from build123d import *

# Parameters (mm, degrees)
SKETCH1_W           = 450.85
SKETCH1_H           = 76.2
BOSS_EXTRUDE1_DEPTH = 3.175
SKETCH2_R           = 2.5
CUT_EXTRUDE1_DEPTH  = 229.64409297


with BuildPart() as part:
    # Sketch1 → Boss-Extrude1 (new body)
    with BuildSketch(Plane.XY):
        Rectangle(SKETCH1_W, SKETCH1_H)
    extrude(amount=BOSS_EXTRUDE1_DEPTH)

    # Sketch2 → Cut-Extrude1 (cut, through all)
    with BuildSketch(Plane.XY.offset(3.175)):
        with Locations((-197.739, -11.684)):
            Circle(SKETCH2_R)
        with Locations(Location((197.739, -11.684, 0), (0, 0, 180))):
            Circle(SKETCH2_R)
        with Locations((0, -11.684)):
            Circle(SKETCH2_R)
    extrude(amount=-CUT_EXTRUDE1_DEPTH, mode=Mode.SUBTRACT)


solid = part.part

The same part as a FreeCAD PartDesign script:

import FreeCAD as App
import Part
import Sketcher

V = App.Vector
Q = App.Units.Quantity


def add_polygon(sketch, points):
    """Adds a closed chain of lines whose ends are joined by coincident constraints."""
    first, n = sketch.GeometryCount, len(points)
    for a, b in zip(points, points[1:] + points[:1]):
        sketch.addGeometry(Part.LineSegment(App.Vector(*a, 0), App.Vector(*b, 0)), False)
    for i in range(n):
        sketch.addConstraint(Sketcher.Constraint("Coincident", first + i, 2, first + (i + 1) % n, 1))

doc = App.newDocument("Part")
body = doc.addObject("PartDesign::Body", "Body")

# Sketch on XY plane
sketch1 = body.newObject("Sketcher::SketchObject", "Sketch")
sketch1.AttachmentSupport = (doc.getObject("XY_Plane"), [""])
sketch1.MapMode = "FlatFace"
add_polygon(sketch1, [(-225, 38), (-225, -38), (225, -38), (225, 38)])  # lines 0-3
sketch1.addConstraint(Sketcher.Constraint("Vertical", 0))
sketch1.addConstraint(Sketcher.Constraint("Horizontal", 1))
sketch1.addConstraint(Sketcher.Constraint("Vertical", 2))
sketch1.addConstraint(Sketcher.Constraint("Horizontal", 3))
sketch1.addConstraint(Sketcher.Constraint("Symmetric", 0, 2, 2, 2, -1, 1))
sketch1.addConstraint(Sketcher.Constraint("DistanceY", 0, 2, 0, 1, Q("3 in")))
sketch1.addConstraint(Sketcher.Constraint("DistanceX", 1, 1, 1, 2, Q("17.75 in")))
pad1 = body.newObject("PartDesign::Pad", "Pad")
pad1.Profile = sketch1
pad1.Length = Q("0.125 in")

# Sketch on XY plane
sketch2 = body.newObject("Sketcher::SketchObject", "Sketch001")
sketch2.AttachmentSupport = (doc.getObject("XY_Plane"), [""])
sketch2.MapMode = "FlatFace"
sketch2.AttachmentOffset = App.Placement(V(0, 0, 0.125 * 25.4), App.Rotation())
sketch2.addGeometry(Part.Circle(V(-197.7, -11.7, 0), V(0, 0, 1), 2.5), False)
sketch2.addGeometry(Part.Circle(V(197.7, -11.7, 0), V(0, 0, 1), 2.5), False)
sketch2.addGeometry(Part.Circle(V(0, -11.7, 0), V(0, 0, 1), 2.5), False)
sketch2.addConstraint(Sketcher.Constraint("Equal", 0, 1))
sketch2.addConstraint(Sketcher.Constraint("Equal", 1, 2))
sketch2.addConstraint(Sketcher.Constraint("Symmetric", 0, 3, 1, 3, -2))
sketch2.addConstraint(Sketcher.Constraint("PointOnObject", 2, 3, -2))
sketch2.addConstraint(Sketcher.Constraint("Horizontal", 1, 3, 2, 3))
sketch2.addConstraint(Sketcher.Constraint("Diameter", 0, Q("5 mm")))
sketch2.addConstraint(Sketcher.Constraint("DistanceY", 0, 3, -1, 1, Q("0.46 in")))
sketch2.addConstraint(Sketcher.Constraint("DistanceX", 0, 3, 1, 3, Q("15.57 in")))
pocket1 = body.newObject("PartDesign::Pocket", "Pocket")
pocket1.Profile = sketch2
pocket1.Type = "ThroughAll"

doc.recompute()
